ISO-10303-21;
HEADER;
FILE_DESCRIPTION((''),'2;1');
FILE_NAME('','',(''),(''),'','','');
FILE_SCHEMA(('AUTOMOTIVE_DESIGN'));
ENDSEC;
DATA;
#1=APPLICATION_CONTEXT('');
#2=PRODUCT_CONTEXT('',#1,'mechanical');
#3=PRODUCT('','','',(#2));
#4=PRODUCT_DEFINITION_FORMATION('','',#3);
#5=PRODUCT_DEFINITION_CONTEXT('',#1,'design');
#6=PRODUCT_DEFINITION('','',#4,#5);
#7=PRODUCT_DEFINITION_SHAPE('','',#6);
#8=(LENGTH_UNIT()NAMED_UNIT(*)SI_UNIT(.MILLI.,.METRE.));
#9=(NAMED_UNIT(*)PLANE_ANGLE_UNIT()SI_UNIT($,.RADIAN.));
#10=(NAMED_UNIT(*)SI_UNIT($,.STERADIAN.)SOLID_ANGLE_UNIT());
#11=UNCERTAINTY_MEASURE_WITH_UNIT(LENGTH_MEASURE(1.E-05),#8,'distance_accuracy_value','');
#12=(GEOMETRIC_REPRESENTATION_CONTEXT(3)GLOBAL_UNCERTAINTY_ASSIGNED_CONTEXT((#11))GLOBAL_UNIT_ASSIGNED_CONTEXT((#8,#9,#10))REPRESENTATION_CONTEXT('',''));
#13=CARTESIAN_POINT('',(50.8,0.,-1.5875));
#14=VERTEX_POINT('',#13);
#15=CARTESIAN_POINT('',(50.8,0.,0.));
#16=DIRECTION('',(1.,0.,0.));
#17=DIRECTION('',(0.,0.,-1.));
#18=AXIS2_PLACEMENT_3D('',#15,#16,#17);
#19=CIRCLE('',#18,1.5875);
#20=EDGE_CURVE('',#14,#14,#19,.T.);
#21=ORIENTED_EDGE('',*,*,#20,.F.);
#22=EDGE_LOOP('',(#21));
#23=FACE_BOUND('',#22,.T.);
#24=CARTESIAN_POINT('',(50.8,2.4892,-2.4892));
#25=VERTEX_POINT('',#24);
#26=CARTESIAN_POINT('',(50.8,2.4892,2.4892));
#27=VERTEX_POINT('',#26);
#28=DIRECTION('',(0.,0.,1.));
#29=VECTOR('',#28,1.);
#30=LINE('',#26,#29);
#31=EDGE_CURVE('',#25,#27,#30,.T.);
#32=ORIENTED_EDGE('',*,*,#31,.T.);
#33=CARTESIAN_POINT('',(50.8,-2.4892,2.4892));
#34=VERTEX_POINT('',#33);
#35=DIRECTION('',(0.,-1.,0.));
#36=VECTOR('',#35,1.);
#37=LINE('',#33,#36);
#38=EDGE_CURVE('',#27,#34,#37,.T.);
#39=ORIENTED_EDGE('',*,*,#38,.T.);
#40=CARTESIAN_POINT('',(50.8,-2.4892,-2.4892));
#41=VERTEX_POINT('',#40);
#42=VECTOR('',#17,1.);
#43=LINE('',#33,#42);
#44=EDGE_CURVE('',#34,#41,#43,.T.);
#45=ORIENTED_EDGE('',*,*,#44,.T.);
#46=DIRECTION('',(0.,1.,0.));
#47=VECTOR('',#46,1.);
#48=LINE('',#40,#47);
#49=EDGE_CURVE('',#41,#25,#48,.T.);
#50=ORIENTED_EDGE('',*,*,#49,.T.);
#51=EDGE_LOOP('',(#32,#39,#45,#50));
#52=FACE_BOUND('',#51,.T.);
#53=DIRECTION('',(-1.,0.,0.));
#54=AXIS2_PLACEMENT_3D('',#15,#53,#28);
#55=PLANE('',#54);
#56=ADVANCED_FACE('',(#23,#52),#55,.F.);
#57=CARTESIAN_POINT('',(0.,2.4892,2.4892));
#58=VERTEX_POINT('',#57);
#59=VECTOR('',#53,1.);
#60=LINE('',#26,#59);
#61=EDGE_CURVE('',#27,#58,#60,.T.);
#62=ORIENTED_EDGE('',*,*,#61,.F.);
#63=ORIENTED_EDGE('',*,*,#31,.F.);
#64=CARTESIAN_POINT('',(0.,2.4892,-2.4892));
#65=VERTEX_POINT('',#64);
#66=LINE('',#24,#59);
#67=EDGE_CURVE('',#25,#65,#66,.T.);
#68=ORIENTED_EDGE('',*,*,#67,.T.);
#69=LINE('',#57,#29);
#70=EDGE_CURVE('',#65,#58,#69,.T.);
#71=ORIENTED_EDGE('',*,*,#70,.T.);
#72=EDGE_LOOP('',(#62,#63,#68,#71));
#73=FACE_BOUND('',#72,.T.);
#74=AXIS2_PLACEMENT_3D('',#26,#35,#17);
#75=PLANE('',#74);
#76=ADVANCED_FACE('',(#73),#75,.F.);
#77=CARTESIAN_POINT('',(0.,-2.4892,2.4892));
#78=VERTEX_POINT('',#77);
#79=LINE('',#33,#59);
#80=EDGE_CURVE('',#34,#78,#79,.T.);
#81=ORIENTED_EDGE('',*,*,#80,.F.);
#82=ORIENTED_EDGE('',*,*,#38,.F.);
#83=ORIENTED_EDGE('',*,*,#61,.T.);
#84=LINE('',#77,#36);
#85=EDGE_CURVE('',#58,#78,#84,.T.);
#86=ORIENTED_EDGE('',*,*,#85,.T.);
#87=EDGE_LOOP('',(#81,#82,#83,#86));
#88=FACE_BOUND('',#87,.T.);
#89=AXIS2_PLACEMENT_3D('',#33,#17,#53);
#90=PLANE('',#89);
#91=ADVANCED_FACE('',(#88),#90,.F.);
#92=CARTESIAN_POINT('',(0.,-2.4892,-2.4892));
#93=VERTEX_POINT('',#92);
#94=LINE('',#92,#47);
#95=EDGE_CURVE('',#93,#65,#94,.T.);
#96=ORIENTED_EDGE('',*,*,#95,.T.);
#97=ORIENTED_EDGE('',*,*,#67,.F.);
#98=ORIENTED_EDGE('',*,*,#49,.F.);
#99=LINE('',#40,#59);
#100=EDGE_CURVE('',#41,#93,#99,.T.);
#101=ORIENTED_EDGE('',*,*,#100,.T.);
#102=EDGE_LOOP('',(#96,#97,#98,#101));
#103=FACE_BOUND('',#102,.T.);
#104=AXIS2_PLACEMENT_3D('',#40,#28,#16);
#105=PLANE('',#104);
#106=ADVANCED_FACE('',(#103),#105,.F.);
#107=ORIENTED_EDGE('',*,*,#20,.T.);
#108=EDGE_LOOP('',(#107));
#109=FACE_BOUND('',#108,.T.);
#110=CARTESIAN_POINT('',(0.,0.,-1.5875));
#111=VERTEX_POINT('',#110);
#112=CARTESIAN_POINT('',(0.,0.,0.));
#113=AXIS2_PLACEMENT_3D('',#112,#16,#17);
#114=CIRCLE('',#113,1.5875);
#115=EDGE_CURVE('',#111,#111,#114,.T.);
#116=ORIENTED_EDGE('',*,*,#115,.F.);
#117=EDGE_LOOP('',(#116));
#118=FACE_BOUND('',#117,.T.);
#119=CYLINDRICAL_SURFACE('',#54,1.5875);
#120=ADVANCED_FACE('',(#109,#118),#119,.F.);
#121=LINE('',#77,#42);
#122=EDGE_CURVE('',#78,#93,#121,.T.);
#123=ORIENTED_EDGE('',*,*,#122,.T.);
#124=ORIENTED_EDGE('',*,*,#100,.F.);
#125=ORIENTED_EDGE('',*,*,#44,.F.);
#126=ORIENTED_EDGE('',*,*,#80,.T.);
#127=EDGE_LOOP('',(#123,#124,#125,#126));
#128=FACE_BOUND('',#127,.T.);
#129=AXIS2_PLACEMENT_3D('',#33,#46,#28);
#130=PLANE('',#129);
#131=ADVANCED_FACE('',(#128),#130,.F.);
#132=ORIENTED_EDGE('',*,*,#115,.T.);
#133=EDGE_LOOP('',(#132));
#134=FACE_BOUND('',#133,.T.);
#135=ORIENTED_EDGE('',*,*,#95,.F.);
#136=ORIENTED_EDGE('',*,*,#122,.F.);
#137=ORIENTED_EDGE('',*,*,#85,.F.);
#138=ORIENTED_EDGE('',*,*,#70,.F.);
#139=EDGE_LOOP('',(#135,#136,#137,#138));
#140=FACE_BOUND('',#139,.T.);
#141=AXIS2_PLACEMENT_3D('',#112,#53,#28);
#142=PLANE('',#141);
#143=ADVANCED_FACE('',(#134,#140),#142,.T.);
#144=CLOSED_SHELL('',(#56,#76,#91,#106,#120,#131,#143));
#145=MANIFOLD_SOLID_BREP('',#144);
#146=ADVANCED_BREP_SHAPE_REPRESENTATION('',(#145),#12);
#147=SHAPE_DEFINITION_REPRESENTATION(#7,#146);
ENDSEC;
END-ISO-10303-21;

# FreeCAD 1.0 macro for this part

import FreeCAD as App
import Part
import Sketcher
Q = App.Units.Quantity

doc = App.newDocument("Part")
body = doc.addObject("PartDesign::Body", "Body")

# Sketch on YZ plane
sketch1 = doc.addObject("Sketcher::SketchObject", "Sketch")
body.addObject(sketch1)
sketch1.AttachmentSupport = (doc.YZ_Plane, [""])
sketch1.MapMode = "FlatFace"
sketch1.addGeometry(Part.LineSegment(App.Vector(2.5, 2.5, 0), App.Vector(-2.5, 2.5, 0)), False)
sketch1.addGeometry(Part.LineSegment(App.Vector(-2.5, 2.5, 0), App.Vector(-2.5, -2.5, 0)), False)
sketch1.addGeometry(Part.LineSegment(App.Vector(-2.5, -2.5, 0), App.Vector(2.5, -2.5, 0)), False)
sketch1.addGeometry(Part.LineSegment(App.Vector(2.5, -2.5, 0), App.Vector(2.5, 2.5, 0)), False)
sketch1.addGeometry(Part.Circle(App.Vector(0, 0, 0), App.Vector(0, 0, 1), 1.6), False)
sketch1.addConstraint(Sketcher.Constraint("Coincident", 0, 2, 1, 1))
sketch1.addConstraint(Sketcher.Constraint("Coincident", 1, 2, 2, 1))
sketch1.addConstraint(Sketcher.Constraint("Coincident", 2, 2, 3, 1))
sketch1.addConstraint(Sketcher.Constraint("Coincident", 3, 2, 0, 1))
sketch1.addConstraint(Sketcher.Constraint("Horizontal", 0))
sketch1.addConstraint(Sketcher.Constraint("Vertical", 1))
sketch1.addConstraint(Sketcher.Constraint("Horizontal", 2))
sketch1.addConstraint(Sketcher.Constraint("Vertical", 3))
sketch1.addConstraint(Sketcher.Constraint("Coincident", 4, 3, -1, 1))
sketch1.addConstraint(Sketcher.Constraint("Symmetric", 0, 2, 2, 2, -1, 1))
sketch1.addConstraint(Sketcher.Constraint("Equal", 2, 1))
sketch1.addConstraint(Sketcher.Constraint("Diameter", 4, Q("0.125 in")))
sketch1.addConstraint(Sketcher.Constraint("DistanceX", 0, 2, 0, 1, Q("0.196 in")))
pad1 = doc.addObject("PartDesign::Pad", "Pad")
body.addObject(pad1)
pad1.Profile = sketch1
pad1.Length = Q("2 in")

doc.recompute()
